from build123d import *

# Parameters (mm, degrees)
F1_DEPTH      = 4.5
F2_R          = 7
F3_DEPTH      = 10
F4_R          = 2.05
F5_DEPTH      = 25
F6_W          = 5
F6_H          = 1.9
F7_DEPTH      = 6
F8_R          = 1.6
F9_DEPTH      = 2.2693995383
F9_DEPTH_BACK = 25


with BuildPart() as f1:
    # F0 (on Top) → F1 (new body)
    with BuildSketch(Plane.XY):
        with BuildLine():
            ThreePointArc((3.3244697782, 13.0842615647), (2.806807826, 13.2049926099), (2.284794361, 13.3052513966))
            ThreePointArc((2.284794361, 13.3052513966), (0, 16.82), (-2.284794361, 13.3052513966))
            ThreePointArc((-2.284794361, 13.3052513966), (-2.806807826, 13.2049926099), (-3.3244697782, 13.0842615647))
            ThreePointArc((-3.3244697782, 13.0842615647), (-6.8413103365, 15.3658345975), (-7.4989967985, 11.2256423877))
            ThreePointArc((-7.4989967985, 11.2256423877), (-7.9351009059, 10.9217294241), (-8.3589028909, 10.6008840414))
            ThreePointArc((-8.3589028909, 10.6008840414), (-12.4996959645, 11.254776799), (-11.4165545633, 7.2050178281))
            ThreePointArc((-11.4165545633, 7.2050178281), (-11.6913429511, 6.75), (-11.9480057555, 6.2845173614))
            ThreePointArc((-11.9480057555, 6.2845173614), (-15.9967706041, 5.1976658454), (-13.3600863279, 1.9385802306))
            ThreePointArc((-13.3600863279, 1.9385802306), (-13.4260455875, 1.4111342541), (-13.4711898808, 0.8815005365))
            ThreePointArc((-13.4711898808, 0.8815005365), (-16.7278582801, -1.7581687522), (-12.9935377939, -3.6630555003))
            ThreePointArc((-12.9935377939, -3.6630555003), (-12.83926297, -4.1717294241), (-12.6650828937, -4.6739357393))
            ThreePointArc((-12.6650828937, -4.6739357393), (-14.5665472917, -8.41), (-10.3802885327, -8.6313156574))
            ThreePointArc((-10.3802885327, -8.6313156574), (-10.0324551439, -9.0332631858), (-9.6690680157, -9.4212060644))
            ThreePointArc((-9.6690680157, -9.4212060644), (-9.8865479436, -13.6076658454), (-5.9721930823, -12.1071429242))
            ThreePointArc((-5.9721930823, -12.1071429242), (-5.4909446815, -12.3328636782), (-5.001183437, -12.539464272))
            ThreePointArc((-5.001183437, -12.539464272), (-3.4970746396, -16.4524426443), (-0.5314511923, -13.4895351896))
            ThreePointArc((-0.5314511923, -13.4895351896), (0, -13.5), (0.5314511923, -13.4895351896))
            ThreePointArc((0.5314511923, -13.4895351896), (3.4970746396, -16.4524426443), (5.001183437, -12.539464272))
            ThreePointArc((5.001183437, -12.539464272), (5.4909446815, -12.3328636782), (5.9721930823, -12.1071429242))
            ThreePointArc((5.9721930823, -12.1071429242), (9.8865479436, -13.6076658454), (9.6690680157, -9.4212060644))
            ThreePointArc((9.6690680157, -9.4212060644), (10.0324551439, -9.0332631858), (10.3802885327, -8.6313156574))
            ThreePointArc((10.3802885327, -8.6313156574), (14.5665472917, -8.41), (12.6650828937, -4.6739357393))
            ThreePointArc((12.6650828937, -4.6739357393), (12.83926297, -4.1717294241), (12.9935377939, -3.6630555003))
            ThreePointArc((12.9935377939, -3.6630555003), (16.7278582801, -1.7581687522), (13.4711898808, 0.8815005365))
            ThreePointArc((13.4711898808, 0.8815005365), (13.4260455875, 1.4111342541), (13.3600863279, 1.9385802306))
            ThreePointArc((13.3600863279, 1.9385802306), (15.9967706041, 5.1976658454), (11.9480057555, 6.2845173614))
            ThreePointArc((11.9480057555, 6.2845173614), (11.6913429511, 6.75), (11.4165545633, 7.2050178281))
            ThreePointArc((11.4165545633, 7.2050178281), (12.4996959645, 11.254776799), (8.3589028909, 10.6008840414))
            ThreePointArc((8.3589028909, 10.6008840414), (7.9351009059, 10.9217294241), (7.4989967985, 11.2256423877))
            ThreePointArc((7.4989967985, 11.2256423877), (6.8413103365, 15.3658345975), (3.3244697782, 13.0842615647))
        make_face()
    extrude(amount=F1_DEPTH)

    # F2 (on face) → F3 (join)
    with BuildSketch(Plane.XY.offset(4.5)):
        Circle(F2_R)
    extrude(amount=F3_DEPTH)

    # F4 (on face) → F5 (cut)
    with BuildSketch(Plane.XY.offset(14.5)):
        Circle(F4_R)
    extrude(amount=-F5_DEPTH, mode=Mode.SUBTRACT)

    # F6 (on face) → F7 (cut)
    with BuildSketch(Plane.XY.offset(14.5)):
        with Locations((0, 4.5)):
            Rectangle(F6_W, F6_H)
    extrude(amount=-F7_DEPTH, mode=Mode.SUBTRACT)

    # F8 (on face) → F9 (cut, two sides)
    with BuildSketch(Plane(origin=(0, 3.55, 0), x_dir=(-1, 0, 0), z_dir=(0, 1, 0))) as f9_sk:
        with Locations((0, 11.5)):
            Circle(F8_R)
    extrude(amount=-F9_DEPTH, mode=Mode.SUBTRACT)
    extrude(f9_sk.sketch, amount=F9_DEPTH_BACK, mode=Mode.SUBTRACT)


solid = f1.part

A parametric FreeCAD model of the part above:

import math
import FreeCAD as App
import Part
import Sketcher
from FreeCAD import Vector
Q = App.Units.Quantity

doc = App.newDocument("Part")
body = doc.addObject("PartDesign::Body", "Body")

# Sketch on XY plane
sketch1 = body.newObject("Sketcher::SketchObject", "Sketch")
sketch1.AttachmentSupport = (doc.getObject("XY_Plane"), [""])
sketch1.MapMode = "FlatFace"
sketch1.addGeometry([
    Part.ArcOfCircle(Part.Circle(Vector(0, 0, 0), Vector(0, 0, 1), 13.5), math.radians(75.74), math.radians(80.26)),  # 0
    Part.ArcOfCircle(Part.Circle(Vector(0, 14.3, 0), Vector(0, 0, 1), 2.5), math.radians(-24), math.radians(204)),  # 1
    Part.ArcOfCircle(Part.Circle(Vector(0, 0, 0), Vector(0, 0, 1), 13.5), math.radians(99.74), math.radians(104.26)),  # 2
    Part.ArcOfCircle(Part.Circle(Vector(-5.8, 13.1, 0), Vector(0, 0, 1), 2.5), math.radians(0), math.radians(228)),  # 3
    Part.ArcOfCircle(Part.Circle(Vector(0, 0, 0), Vector(0, 0, 1), 13.5), math.radians(123.74), math.radians(128.26)),  # 4
    Part.ArcOfCircle(Part.Circle(Vector(-10.6, 9.6, 0), Vector(0, 0, 1), 2.5), math.radians(24), math.radians(252)),  # 5
    Part.ArcOfCircle(Part.Circle(Vector(0, 0, 0), Vector(0, 0, 1), 13.5), math.radians(147.74), math.radians(152.26)),  # 6
    Part.ArcOfCircle(Part.Circle(Vector(-13.6, 4.4, 0), Vector(0, 0, 1), 2.5), math.radians(48), math.radians(276)),  # 7
    Part.ArcOfCircle(Part.Circle(Vector(0, 0, 0), Vector(0, 0, 1), 13.5), math.radians(171.74), math.radians(176.26)),  # 8
    Part.ArcOfCircle(Part.Circle(Vector(-14.2, -1.5, 0), Vector(0, 0, 1), 2.5), math.radians(72), math.radians(300)),  # 9
    Part.ArcOfCircle(Part.Circle(Vector(0, 0, 0), Vector(0, 0, 1), 13.5), math.radians(-164.26), math.radians(-159.74)),  # 10
    Part.ArcOfCircle(Part.Circle(Vector(-12.4, -7.2, 0), Vector(0, 0, 1), 2.5), math.radians(96), math.radians(324)),  # 11
    Part.ArcOfCircle(Part.Circle(Vector(0, 0, 0), Vector(0, 0, 1), 13.5), math.radians(-140.26), math.radians(-135.74)),  # 12
    Part.ArcOfCircle(Part.Circle(Vector(-8.4, -11.6, 0), Vector(0, 0, 1), 2.5), math.radians(120), math.radians(348)),  # 13
    Part.ArcOfCircle(Part.Circle(Vector(0, 0, 0), Vector(0, 0, 1), 13.5), math.radians(-116.26), math.radians(-111.74)),  # 14
    Part.ArcOfCircle(Part.Circle(Vector(-3, -14, 0), Vector(0, 0, 1), 2.5), math.radians(144), math.radians(372)),  # 15
    Part.ArcOfCircle(Part.Circle(Vector(0, 0, 0), Vector(0, 0, 1), 13.5), math.radians(-92.26), math.radians(-87.74)),  # 16
    Part.ArcOfCircle(Part.Circle(Vector(3, -14, 0), Vector(0, 0, 1), 2.5), math.radians(168), math.radians(396)),  # 17
    Part.ArcOfCircle(Part.Circle(Vector(0, 0, 0), Vector(0, 0, 1), 13.5), math.radians(-68.26), math.radians(-63.74)),  # 18
    Part.ArcOfCircle(Part.Circle(Vector(8.4, -11.6, 0), Vector(0, 0, 1), 2.5), math.radians(-168), math.radians(60)),  # 19
    Part.ArcOfCircle(Part.Circle(Vector(0, 0, 0), Vector(0, 0, 1), 13.5), math.radians(-44.26), math.radians(-39.74)),  # 20
    Part.ArcOfCircle(Part.Circle(Vector(12.4, -7.2, 0), Vector(0, 0, 1), 2.5), math.radians(-144), math.radians(84)),  # 21
    Part.ArcOfCircle(Part.Circle(Vector(0, 0, 0), Vector(0, 0, 1), 13.5), math.radians(-20.26), math.radians(-15.74)),  # 22
    Part.ArcOfCircle(Part.Circle(Vector(14.2, -1.5, 0), Vector(0, 0, 1), 2.5), math.radians(-120), math.radians(108)),  # 23
    Part.ArcOfCircle(Part.Circle(Vector(0, 0, 0), Vector(0, 0, 1), 13.5), math.radians(3.74), math.radians(8.26)),  # 24
    Part.ArcOfCircle(Part.Circle(Vector(13.6, 4.4, 0), Vector(0, 0, 1), 2.5), math.radians(-96), math.radians(132)),  # 25
    Part.ArcOfCircle(Part.Circle(Vector(0, 0, 0), Vector(0, 0, 1), 13.5), math.radians(27.74), math.radians(32.26)),  # 26
    Part.ArcOfCircle(Part.Circle(Vector(10.6, 9.6, 0), Vector(0, 0, 1), 2.5), math.radians(-72), math.radians(156)),  # 27
    Part.ArcOfCircle(Part.Circle(Vector(0, 0, 0), Vector(0, 0, 1), 13.5), math.radians(51.74), math.radians(56.26)),  # 28
    Part.ArcOfCircle(Part.Circle(Vector(5.8, 13.1, 0), Vector(0, 0, 1), 2.5), math.radians(-48), math.radians(180)),  # 29
], False)
sketch1.addConstraint([
    Sketcher.Constraint("Coincident", 0, 2, 1, 1),
    Sketcher.Constraint("Coincident", 1, 2, 2, 1),
    Sketcher.Constraint("Coincident", 2, 2, 3, 1),
    Sketcher.Constraint("Coincident", 3, 2, 4, 1),
    Sketcher.Constraint("Coincident", 4, 2, 5, 1),
    Sketcher.Constraint("Coincident", 5, 2, 6, 1),
    Sketcher.Constraint("Coincident", 6, 2, 7, 1),
    Sketcher.Constraint("Coincident", 7, 2, 8, 1),
    Sketcher.Constraint("Coincident", 8, 2, 9, 1),
    Sketcher.Constraint("Coincident", 9, 2, 10, 1),
    Sketcher.Constraint("Coincident", 10, 2, 11, 1),
    Sketcher.Constraint("Coincident", 11, 2, 12, 1),
    Sketcher.Constraint("Coincident", 12, 2, 13, 1),
    Sketcher.Constraint("Coincident", 13, 2, 14, 1),
    Sketcher.Constraint("Coincident", 14, 2, 15, 1),
    Sketcher.Constraint("Coincident", 15, 2, 16, 1),
    Sketcher.Constraint("Coincident", 16, 2, 17, 1),
    Sketcher.Constraint("Coincident", 17, 2, 18, 1),
    Sketcher.Constraint("Coincident", 18, 2, 19, 1),
    Sketcher.Constraint("Coincident", 19, 2, 20, 1),
    Sketcher.Constraint("Coincident", 20, 2, 21, 1),
    Sketcher.Constraint("Coincident", 21, 2, 22, 1),
    Sketcher.Constraint("Coincident", 22, 2, 23, 1),
    Sketcher.Constraint("Coincident", 23, 2, 24, 1),
    Sketcher.Constraint("Coincident", 24, 2, 25, 1),
    Sketcher.Constraint("Coincident", 25, 2, 26, 1),
    Sketcher.Constraint("Coincident", 26, 2, 27, 1),
    Sketcher.Constraint("Coincident", 27, 2, 28, 1),
    Sketcher.Constraint("Coincident", 28, 2, 29, 1),
    Sketcher.Constraint("Coincident", 29, 2, 0, 1),
    Sketcher.Constraint("Coincident", 0, 3, -1, 1),
    Sketcher.Constraint("Coincident", 2, 3, -1, 1),
    Sketcher.Constraint("Coincident", 4, 3, -1, 1),
    Sketcher.Constraint("Coincident", 6, 3, -1, 1),
    Sketcher.Constraint("Coincident", 8, 3, -1, 1),
    Sketcher.Constraint("Coincident", 10, 3, -1, 1),
    Sketcher.Constraint("Coincident", 12, 3, -1, 1),
    Sketcher.Constraint("Coincident", 14, 3, -1, 1),
    Sketcher.Constraint("Coincident", 16, 3, -1, 1),
    Sketcher.Constraint("Coincident", 18, 3, -1, 1),
    Sketcher.Constraint("Coincident", 20, 3, -1, 1),
    Sketcher.Constraint("Coincident", 22, 3, -1, 1),
    Sketcher.Constraint("Coincident", 24, 3, -1, 1),
    Sketcher.Constraint("Coincident", 26, 3, -1, 1),
    Sketcher.Constraint("Coincident", 28, 3, -1, 1),
    Sketcher.Constraint("Equal", 0, 2),
    Sketcher.Constraint("Equal", 1, 3),
    Sketcher.Constraint("Equal", 2, 4),
    Sketcher.Constraint("Equal", 3, 5),
    Sketcher.Constraint("Equal", 4, 6),
    Sketcher.Constraint("Equal", 5, 7),
    Sketcher.Constraint("Equal", 6, 8),
    Sketcher.Constraint("Equal", 7, 9),
    Sketcher.Constraint("Equal", 8, 10),
    Sketcher.Constraint("Equal", 9, 11),
    Sketcher.Constraint("Equal", 10, 12),
    Sketcher.Constraint("Equal", 11, 13),
    Sketcher.Constraint("Equal", 12, 14),
    Sketcher.Constraint("Equal", 13, 15),
    Sketcher.Constraint("Equal", 14, 16),
    Sketcher.Constraint("Equal", 15, 17),
    Sketcher.Constraint("Equal", 16, 18),
    Sketcher.Constraint("Equal", 17, 19),
    Sketcher.Constraint("Equal", 18, 20),
    Sketcher.Constraint("Equal", 19, 21),
    Sketcher.Constraint("Equal", 20, 22),
    Sketcher.Constraint("Equal", 21, 23),
    Sketcher.Constraint("Equal", 22, 24),
    Sketcher.Constraint("Equal", 23, 25),
    Sketcher.Constraint("Equal", 24, 26),
    Sketcher.Constraint("Equal", 25, 27),
    Sketcher.Constraint("Equal", 26, 28),
    Sketcher.Constraint("Equal", 27, 29),
    Sketcher.Constraint("Symmetric", 15, 3, 17, 3, -2),
    Sketcher.Constraint("Symmetric", 13, 3, 19, 3, -2),
    Sketcher.Constraint("Symmetric", 11, 3, 21, 3, -2),
    Sketcher.Constraint("Symmetric", 9, 3, 23, 3, -2),
    Sketcher.Constraint("Symmetric", 7, 3, 25, 3, -2),
    Sketcher.Constraint("Symmetric", 5, 3, 27, 3, -2),
    Sketcher.Constraint("Symmetric", 3, 3, 29, 3, -2),
    Sketcher.Constraint("PointOnObject", 1, 3, -2),
    Sketcher.Constraint("Radius", 0, Q("13.5 mm")),
    Sketcher.Constraint("Radius", 1, Q("2.5 mm")),
    Sketcher.Constraint("DistanceY", -1, 1, 1, 3, Q("14.32 mm")),
    Sketcher.Constraint("DistanceY", 11, 3, -1, 1, Q("7.16 mm")),
    Sketcher.Constraint("DistanceX", 19, 3, 21, 2, Q("4.247998 mm")),
    Sketcher.Constraint("DistanceY", -1, 1, 8, 2, Q("0.881501 mm")),
    Sketcher.Constraint("DistanceX", 11, 3, 13, 3, Q("3.984399 mm")),
    Sketcher.Constraint("DistanceY", 27, 3, 0, 2, Q("3.723301 mm")),
    Sketcher.Constraint("DistanceY", 6, 2, 5, 2, Q("0.9205 mm")),
    Sketcher.Constraint("DistanceX", 13, 3, 14, 2, Q("3.415901 mm")),
    Sketcher.Constraint("DistanceX", 3, 3, -1, 1, Q("5.824469 mm")),
    Sketcher.Constraint("DistanceY", -1, 1, 3, 3, Q("13.081971 mm")),
    Sketcher.Constraint("DistanceX", 7, 3, -1, 1, Q("13.619129 mm")),
    Sketcher.Constraint("DistanceY", -1, 1, 7, 2, Q("1.93858 mm")),
    Sketcher.Constraint("DistanceX", 12, 2, -1, 1, Q("9.669068 mm")),
    Sketcher.Constraint("DistanceX", 15, 2, -1, 1, Q("0.531451 mm")),
    Sketcher.Constraint("DistanceY", 9, 3, 7, 3, Q("5.921971 mm")),
])
pad1 = body.newObject("PartDesign::Pad", "Pad")
pad1.Profile = sketch1
pad1.Length = 4.5

# Sketch on XY plane
sketch2 = body.newObject("Sketcher::SketchObject", "Sketch001")
sketch2.AttachmentSupport = (doc.getObject("XY_Plane"), [""])
sketch2.MapMode = "FlatFace"
sketch2.AttachmentOffset = App.Placement(Vector(0, 0, 4.5), App.Rotation())
sketch2.addGeometry(Part.Circle(Vector(0, 0, 0), Vector(0, 0, 1), 7), False)
sketch2.addConstraint([
    Sketcher.Constraint("Coincident", 0, 3, -1, 1),
    Sketcher.Constraint("Diameter", 0, Q("14 mm")),
])
pad2 = body.newObject("PartDesign::Pad", "Pad001")
pad2.Profile = sketch2
pad2.Length = 10

# Sketch on XY plane
sketch3 = body.newObject("Sketcher::SketchObject", "Sketch002")
sketch3.AttachmentSupport = (doc.getObject("XY_Plane"), [""])
sketch3.MapMode = "FlatFace"
sketch3.AttachmentOffset = App.Placement(Vector(0, 0, 14.5), App.Rotation())
sketch3.addGeometry(Part.Circle(Vector(0, 0, 0), Vector(0, 0, 1), 2), False)
sketch3.addConstraint([
    Sketcher.Constraint("Coincident", 0, 3, -1, 1),
    Sketcher.Constraint("Diameter", 0, Q("4.1 mm")),
])
pocket1 = body.newObject("PartDesign::Pocket", "Pocket")
pocket1.Profile = sketch3
pocket1.Length = 25

# Sketch on XY plane
sketch4 = body.newObject("Sketcher::SketchObject", "Sketch003")
sketch4.AttachmentSupport = (doc.getObject("XY_Plane"), [""])
sketch4.MapMode = "FlatFace"
sketch4.AttachmentOffset = App.Placement(Vector(0, 0, 14.5), App.Rotation())
sketch4.addGeometry([
    Part.LineSegment(Vector(-2.5, 5.5, 0), Vector(-2.5, 3.5, 0)),
    Part.LineSegment(Vector(-2.5, 3.5, 0), Vector(2.5, 3.5, 0)),
    Part.LineSegment(Vector(2.5, 3.5, 0), Vector(2.5, 5.5, 0)),
    Part.LineSegment(Vector(2.5, 5.5, 0), Vector(-2.5, 5.5, 0)),
], False)
sketch4.addConstraint([
    Sketcher.Constraint("Coincident", 0, 2, 1, 1),
    Sketcher.Constraint("Coincident", 1, 2, 2, 1),
    Sketcher.Constraint("Coincident", 2, 2, 3, 1),
    Sketcher.Constraint("Coincident", 3, 2, 0, 1),
    Sketcher.Constraint("Vertical", 0),
    Sketcher.Constraint("Horizontal", 1),
    Sketcher.Constraint("Vertical", 2),
    Sketcher.Constraint("Horizontal", 3),
    Sketcher.Constraint("DistanceX", 1, 1, 1, 2, Q("5 mm")),
    Sketcher.Constraint("DistanceY", 0, 2, 0, 1, Q("1.9 mm")),
    Sketcher.Constraint("DistanceX", 0, 2, -1, 1, Q("2.5 mm")),
    Sketcher.Constraint("DistanceY", -1, 1, 0, 2, Q("3.55 mm")),
])
pocket2 = body.newObject("PartDesign::Pocket", "Pocket001")
pocket2.Profile = sketch4
pocket2.Length = 6

# Sketch on XZ plane
sketch5 = body.newObject("Sketcher::SketchObject", "Sketch004")
sketch5.AttachmentSupport = (doc.getObject("XZ_Plane"), [""])
sketch5.MapMode = "FlatFace"
sketch5.AttachmentOffset = App.Placement(Vector(0, 0, -3.55), App.Rotation())
sketch5.addGeometry(Part.Circle(Vector(0, 11.5, 0), Vector(0, 0, 1), 1.6), False)
sketch5.addConstraint([
    Sketcher.Constraint("PointOnObject", 0, 3, -2),
    Sketcher.Constraint("Diameter", 0, Q("3.2 mm")),
    Sketcher.Constraint("DistanceY", -1, 1, 0, 3, Q("11.5 mm")),
])
pocket3 = body.newObject("PartDesign::Pocket", "Pocket002")
pocket3.Profile = sketch5
pocket3.Type = "TwoLengths"
pocket3.Length = 2.2694
pocket3.Length2 = 25
pocket3.Reversed = True

doc.recompute()
